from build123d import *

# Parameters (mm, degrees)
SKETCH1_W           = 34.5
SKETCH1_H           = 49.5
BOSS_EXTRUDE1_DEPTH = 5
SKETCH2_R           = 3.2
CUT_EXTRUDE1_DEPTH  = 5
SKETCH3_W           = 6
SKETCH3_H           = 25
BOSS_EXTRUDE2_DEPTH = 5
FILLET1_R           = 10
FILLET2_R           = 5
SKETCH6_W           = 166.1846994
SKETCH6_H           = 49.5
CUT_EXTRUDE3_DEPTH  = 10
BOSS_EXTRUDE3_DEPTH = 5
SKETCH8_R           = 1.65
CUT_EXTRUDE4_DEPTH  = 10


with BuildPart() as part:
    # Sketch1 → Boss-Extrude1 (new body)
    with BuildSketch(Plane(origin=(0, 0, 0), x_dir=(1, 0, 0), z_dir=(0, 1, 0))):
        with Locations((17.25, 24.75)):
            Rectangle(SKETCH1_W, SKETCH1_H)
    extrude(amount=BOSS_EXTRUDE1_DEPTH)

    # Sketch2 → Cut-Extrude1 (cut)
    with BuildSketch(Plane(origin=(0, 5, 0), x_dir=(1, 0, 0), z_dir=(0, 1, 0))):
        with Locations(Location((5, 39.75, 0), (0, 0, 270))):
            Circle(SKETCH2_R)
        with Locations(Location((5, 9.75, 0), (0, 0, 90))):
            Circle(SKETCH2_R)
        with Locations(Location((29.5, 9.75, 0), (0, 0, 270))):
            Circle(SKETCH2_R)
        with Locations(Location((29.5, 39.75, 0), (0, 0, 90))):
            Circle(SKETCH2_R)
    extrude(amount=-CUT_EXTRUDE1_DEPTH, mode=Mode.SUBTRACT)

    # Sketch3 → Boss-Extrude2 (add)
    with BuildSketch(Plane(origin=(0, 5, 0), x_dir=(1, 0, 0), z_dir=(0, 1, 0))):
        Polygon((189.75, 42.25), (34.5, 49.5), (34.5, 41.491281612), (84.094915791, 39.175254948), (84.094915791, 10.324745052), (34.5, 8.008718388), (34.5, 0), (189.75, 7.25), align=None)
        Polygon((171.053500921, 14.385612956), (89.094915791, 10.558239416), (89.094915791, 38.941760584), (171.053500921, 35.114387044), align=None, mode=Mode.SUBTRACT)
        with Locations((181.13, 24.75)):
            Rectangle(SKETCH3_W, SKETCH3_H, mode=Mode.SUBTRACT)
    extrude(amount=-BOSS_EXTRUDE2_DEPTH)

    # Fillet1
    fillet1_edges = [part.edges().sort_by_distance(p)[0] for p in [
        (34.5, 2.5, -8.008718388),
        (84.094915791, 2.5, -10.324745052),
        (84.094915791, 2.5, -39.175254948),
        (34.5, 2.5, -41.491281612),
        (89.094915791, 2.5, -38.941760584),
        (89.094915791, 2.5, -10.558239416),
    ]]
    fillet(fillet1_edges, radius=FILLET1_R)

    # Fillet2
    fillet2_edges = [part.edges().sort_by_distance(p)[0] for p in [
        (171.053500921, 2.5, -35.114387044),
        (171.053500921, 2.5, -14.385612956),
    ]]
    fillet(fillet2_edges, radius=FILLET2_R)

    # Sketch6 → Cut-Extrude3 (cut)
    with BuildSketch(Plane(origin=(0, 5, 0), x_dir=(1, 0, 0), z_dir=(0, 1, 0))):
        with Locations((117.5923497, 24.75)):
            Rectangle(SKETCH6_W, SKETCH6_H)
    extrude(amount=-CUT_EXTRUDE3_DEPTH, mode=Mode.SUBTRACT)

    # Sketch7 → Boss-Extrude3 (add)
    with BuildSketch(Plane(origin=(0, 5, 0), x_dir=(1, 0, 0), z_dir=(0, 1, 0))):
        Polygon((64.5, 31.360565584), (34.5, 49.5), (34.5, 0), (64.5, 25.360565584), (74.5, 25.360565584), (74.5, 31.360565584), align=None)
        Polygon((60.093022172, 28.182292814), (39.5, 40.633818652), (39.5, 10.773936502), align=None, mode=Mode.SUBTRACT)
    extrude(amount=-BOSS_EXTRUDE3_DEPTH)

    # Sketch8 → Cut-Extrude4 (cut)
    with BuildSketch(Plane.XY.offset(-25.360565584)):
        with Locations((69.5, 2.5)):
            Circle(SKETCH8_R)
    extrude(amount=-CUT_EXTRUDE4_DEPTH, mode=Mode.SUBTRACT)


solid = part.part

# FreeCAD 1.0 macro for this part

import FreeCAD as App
import Part
import Sketcher
Q = App.Units.Quantity


def edges_at(feature, points):
    """Names of the edges that pass closest to the given points."""
    edges = feature.Shape.Edges
    near = lambda p: min(range(len(edges)), key=lambda i: edges[i].distToShape(Part.Vertex(*p))[0])
    return sorted({f"Edge{near(p) + 1}" for p in points})

doc = App.newDocument("Part")
body = doc.addObject("PartDesign::Body", "Body")

sketch1 = body.newObject("Sketcher::SketchObject", "Sketch")
sketch1.AttachmentSupport = (doc.getObject("XZ_Plane"), [""])
sketch1.MapMode = "FlatFace"
sketch1.addGeometry([
    Part.LineSegment(App.Vector(0, -49.5, 0), App.Vector(0, 0, 0)),
    Part.LineSegment(App.Vector(0, 0, 0), App.Vector(34.5, 0, 0)),
    Part.LineSegment(App.Vector(34.5, 0, 0), App.Vector(34.5, -49.5, 0)),
    Part.LineSegment(App.Vector(34.5, -49.5, 0), App.Vector(0, -49.5, 0)),
], False)
sketch1.addConstraint([
    Sketcher.Constraint("Coincident", 0, 2, 1, 1),
    Sketcher.Constraint("Coincident", 1, 2, 2, 1),
    Sketcher.Constraint("Coincident", 2, 2, 3, 1),
    Sketcher.Constraint("Coincident", 3, 2, 0, 1),
    Sketcher.Constraint("Vertical", 0),
    Sketcher.Constraint("Horizontal", 1),
    Sketcher.Constraint("Vertical", 2),
    Sketcher.Constraint("Horizontal", 3),
    Sketcher.Constraint("Coincident", 0, 2, -1, 1),
    Sketcher.Constraint("DistanceX", 1, 1, 1, 2, Q("34.5 mm")),
    Sketcher.Constraint("DistanceY", 0, 1, 0, 2, Q("49.5 mm")),
])
pad1 = body.newObject("PartDesign::Pad", "Pad")
pad1.Profile = sketch1
pad1.Length = 5
pad1.Reversed = True

sketch2 = body.newObject("Sketcher::SketchObject", "Sketch001")
sketch2.AttachmentSupport = (doc.getObject("XZ_Plane"), [""])
sketch2.MapMode = "FlatFace"
sketch2.AttachmentOffset = App.Placement(App.Vector(0, 0, -5), App.Rotation())
sketch2.addGeometry([
    Part.Circle(App.Vector(5, -39.75, 0), App.Vector(0, 0, 1), 3.2),
    Part.Circle(App.Vector(5, -9.75, 0), App.Vector(0, 0, 1), 3.2),
    Part.Circle(App.Vector(29.5, -9.75, 0), App.Vector(0, 0, 1), 3.2),
    Part.Circle(App.Vector(29.5, -39.75, 0), App.Vector(0, 0, 1), 3.2),
], False)
sketch2.addConstraint([
    Sketcher.Constraint("Equal", 0, 1),
    Sketcher.Constraint("Equal", 1, 2),
    Sketcher.Constraint("Equal", 2, 3),
    Sketcher.Constraint("Horizontal", 1, 3, 2, 3),
    Sketcher.Constraint("Horizontal", 0, 3, 3, 3),
    Sketcher.Constraint("Vertical", 0, 3, 1, 3),
    Sketcher.Constraint("Vertical", 2, 3, 3, 3),
    Sketcher.Constraint("Diameter", 0, Q("6.4 mm")),
    Sketcher.Constraint("DistanceX", -1, 1, 0, 3, Q("5 mm")),
    Sketcher.Constraint("DistanceY", 0, 3, 1, 3, Q("30 mm")),
    Sketcher.Constraint("DistanceX", -1, 1, 2, 3, Q("29.5 mm")),
    Sketcher.Constraint("DistanceY", 0, 3, -1, 1, Q("39.75 mm")),
])
pocket1 = body.newObject("PartDesign::Pocket", "Pocket")
pocket1.Profile = sketch2
pocket1.Length = 5
pocket1.Reversed = True

sketch3 = body.newObject("Sketcher::SketchObject", "Sketch002")
sketch3.AttachmentSupport = (doc.getObject("XZ_Plane"), [""])
sketch3.MapMode = "FlatFace"
sketch3.AttachmentOffset = App.Placement(App.Vector(0, 0, -5), App.Rotation())
sketch3.addGeometry([
    Part.LineSegment(App.Vector(189.75, -42.25, 0), App.Vector(34.5, -49.5, 0)),
    Part.LineSegment(App.Vector(34.5, -49.5, 0), App.Vector(34.5, -41.491282, 0)),
    Part.LineSegment(App.Vector(34.5, -41.491282, 0), App.Vector(84.094916, -39.175255, 0)),
    Part.LineSegment(App.Vector(84.094916, -39.175255, 0), App.Vector(84.094916, -10.324745, 0)),
    Part.LineSegment(App.Vector(84.094916, -10.324745, 0), App.Vector(34.5, -8.008718, 0)),
    Part.LineSegment(App.Vector(34.5, -8.008718, 0), App.Vector(34.5, 0, 0)),
    Part.LineSegment(App.Vector(34.5, 0, 0), App.Vector(189.75, -7.25, 0)),
    Part.LineSegment(App.Vector(189.75, -7.25, 0), App.Vector(189.75, -42.25, 0)),
    Part.LineSegment(App.Vector(171.053501, -35.114387, 0), App.Vector(171.053501, -14.385613, 0)),
    Part.LineSegment(App.Vector(171.053501, -14.385613, 0), App.Vector(89.094916, -10.558239, 0)),
    Part.LineSegment(App.Vector(89.094916, -10.558239, 0), App.Vector(89.094916, -38.941761, 0)),
    Part.LineSegment(App.Vector(89.094916, -38.941761, 0), App.Vector(171.053501, -35.114387, 0)),
    Part.LineSegment(App.Vector(184.13, -12.25, 0), App.Vector(178.13, -12.25, 0)),
    Part.LineSegment(App.Vector(178.13, -12.25, 0), App.Vector(178.13, -37.25, 0)),
    Part.LineSegment(App.Vector(178.13, -37.25, 0), App.Vector(184.13, -37.25, 0)),
    Part.LineSegment(App.Vector(184.13, -37.25, 0), App.Vector(184.13, -12.25, 0)),
], False)
sketch3.addConstraint([
    Sketcher.Constraint("Coincident", 0, 2, 1, 1),
    Sketcher.Constraint("Coincident", 1, 2, 2, 1),
    Sketcher.Constraint("Coincident", 2, 2, 3, 1),
    Sketcher.Constraint("Coincident", 3, 2, 4, 1),
    Sketcher.Constraint("Coincident", 4, 2, 5, 1),
    Sketcher.Constraint("Coincident", 5, 2, 6, 1),
    Sketcher.Constraint("Coincident", 6, 2, 7, 1),
    Sketcher.Constraint("Coincident", 7, 2, 0, 1),
    Sketcher.Constraint("Coincident", 8, 2, 9, 1),
    Sketcher.Constraint("Coincident", 9, 2, 10, 1),
    Sketcher.Constraint("Coincident", 10, 2, 11, 1),
    Sketcher.Constraint("Coincident", 11, 2, 8, 1),
    Sketcher.Constraint("Coincident", 12, 2, 13, 1),
    Sketcher.Constraint("Coincident", 13, 2, 14, 1),
    Sketcher.Constraint("Coincident", 14, 2, 15, 1),
    Sketcher.Constraint("Coincident", 15, 2, 12, 1),
    Sketcher.Constraint("Vertical", 1),
    Sketcher.Constraint("Vertical", 3),
    Sketcher.Constraint("Vertical", 5),
    Sketcher.Constraint("Vertical", 7),
    Sketcher.Constraint("Vertical", 8),
    Sketcher.Constraint("Vertical", 10),
    Sketcher.Constraint("Horizontal", 12),
    Sketcher.Constraint("Vertical", 13),
    Sketcher.Constraint("Horizontal", 14),
    Sketcher.Constraint("Vertical", 15),
    Sketcher.Constraint("PointOnObject", 5, 2, -1),
    Sketcher.Constraint("Parallel", 0, 2),
    Sketcher.Constraint("Parallel", 4, 6),
    Sketcher.Constraint("Parallel", 6, 9),
    Sketcher.Constraint("Parallel", 2, 11),
    Sketcher.Constraint("Vertical", 1, 2, 4, 2),
    Sketcher.Constraint("Equal", 1, 5),
    Sketcher.Constraint("Equal", 2, 4),
    Sketcher.Constraint("DistanceX", 12, 2, 12, 1, Q("6 mm")),
    Sketcher.Constraint("DistanceY", 7, 2, 7, 1, Q("35 mm")),
    Sketcher.Constraint("DistanceY", 13, 2, 13, 1, Q("25 mm")),
    Sketcher.Constraint("DistanceX", 3, 2, 9, 2, Q("5 mm")),
    Sketcher.Constraint("DistanceY", 12, 2, 6, 2, Q("5 mm")),
    Sketcher.Constraint("DistanceX", -1, 1, 0, 2, Q("34.5 mm")),
    Sketcher.Constraint("DistanceY", 0, 2, -1, 1, Q("49.5 mm")),
    Sketcher.Constraint("DistanceX", -1, 1, 6, 2, Q("189.75 mm")),
    Sketcher.Constraint("DistanceX", -1, 1, 12, 2, Q("178.13 mm")),
    Sketcher.Constraint("DistanceY", 1, 1, 1, 2, Q("8.008718 mm")),
    Sketcher.Constraint("DistanceY", 3, 1, 3, 2, Q("28.85051 mm")),
    Sketcher.Constraint("DistanceY", 10, 2, 10, 1, Q("28.383521 mm")),
    Sketcher.Constraint("DistanceX", -1, 1, 8, 2, Q("171.053501 mm")),
    Sketcher.Constraint("DistanceY", 9, 2, -1, 1, Q("10.558239 mm")),
])
pad2 = body.newObject("PartDesign::Pad", "Pad001")
pad2.Profile = sketch3
pad2.Length = 5
doc.recompute()

fillet = body.newObject("PartDesign::Fillet", "Fillet")
fillet.Base = (pad2, edges_at(pad2, [
    (34.5, 2.5, -8.009),
    (84.095, 2.5, -10.325),
    (84.095, 2.5, -39.175),
    (34.5, 2.5, -41.491),
    (89.095, 2.5, -38.942),
    (89.095, 2.5, -10.558),
]))
fillet.Radius = 10
doc.recompute()

fillet2 = body.newObject("PartDesign::Fillet", "Fillet001")
fillet2.Base = (fillet, edges_at(fillet, [(171.054, 2.5, -35.114), (171.054, 2.5, -14.386)]))
fillet2.Radius = 5

sketch4 = body.newObject("Sketcher::SketchObject", "Sketch003")
sketch4.AttachmentSupport = (doc.getObject("XZ_Plane"), [""])
sketch4.MapMode = "FlatFace"
sketch4.AttachmentOffset = App.Placement(App.Vector(0, 0, -5), App.Rotation())
sketch4.addGeometry([
    Part.LineSegment(App.Vector(34.5, -49.5, 0), App.Vector(34.5, 0, 0)),
    Part.LineSegment(App.Vector(34.5, 0, 0), App.Vector(200.684699, 0, 0)),
    Part.LineSegment(App.Vector(200.684699, 0, 0), App.Vector(200.684699, -49.5, 0)),
    Part.LineSegment(App.Vector(200.684699, -49.5, 0), App.Vector(34.5, -49.5, 0)),
], False)
sketch4.addConstraint([
    Sketcher.Constraint("Coincident", 0, 2, 1, 1),
    Sketcher.Constraint("Coincident", 1, 2, 2, 1),
    Sketcher.Constraint("Coincident", 2, 2, 3, 1),
    Sketcher.Constraint("Coincident", 3, 2, 0, 1),
    Sketcher.Constraint("Vertical", 0),
    Sketcher.Constraint("Horizontal", 1),
    Sketcher.Constraint("Vertical", 2),
    Sketcher.Constraint("Horizontal", 3),
    Sketcher.Constraint("PointOnObject", 0, 2, -1),
    Sketcher.Constraint("DistanceY", 0, 1, 0, 2, Q("49.5 mm")),
    Sketcher.Constraint("DistanceX", -1, 1, 0, 2, Q("34.5 mm")),
    Sketcher.Constraint("DistanceX", 1, 1, 1, 2, Q("166.184699 mm")),
])
pocket2 = body.newObject("PartDesign::Pocket", "Pocket001")
pocket2.Profile = sketch4
pocket2.Length = 10
pocket2.Reversed = True

sketch5 = body.newObject("Sketcher::SketchObject", "Sketch004")
sketch5.AttachmentSupport = (doc.getObject("XZ_Plane"), [""])
sketch5.MapMode = "FlatFace"
sketch5.AttachmentOffset = App.Placement(App.Vector(0, 0, -5), App.Rotation())
sketch5.addGeometry([
    Part.LineSegment(App.Vector(64.5, -31.360566, 0), App.Vector(34.5, -49.5, 0)),
    Part.LineSegment(App.Vector(34.5, -49.5, 0), App.Vector(34.5, 0, 0)),
    Part.LineSegment(App.Vector(34.5, 0, 0), App.Vector(64.5, -25.360566, 0)),
    Part.LineSegment(App.Vector(64.5, -25.360566, 0), App.Vector(74.5, -25.360566, 0)),
    Part.LineSegment(App.Vector(74.5, -25.360566, 0), App.Vector(74.5, -31.360566, 0)),
    Part.LineSegment(App.Vector(74.5, -31.360566, 0), App.Vector(64.5, -31.360566, 0)),
    Part.LineSegment(App.Vector(39.5, -40.633819, 0), App.Vector(60.093022, -28.182293, 0)),
    Part.LineSegment(App.Vector(60.093022, -28.182293, 0), App.Vector(39.5, -10.773937, 0)),
    Part.LineSegment(App.Vector(39.5, -10.773937, 0), App.Vector(39.5, -40.633819, 0)),
], False)
sketch5.addConstraint([
    Sketcher.Constraint("Coincident", 0, 2, 1, 1),
    Sketcher.Constraint("Coincident", 1, 2, 2, 1),
    Sketcher.Constraint("Coincident", 2, 2, 3, 1),
    Sketcher.Constraint("Coincident", 3, 2, 4, 1),
    Sketcher.Constraint("Coincident", 4, 2, 5, 1),
    Sketcher.Constraint("Coincident", 5, 2, 0, 1),
    Sketcher.Constraint("Coincident", 6, 2, 7, 1),
    Sketcher.Constraint("Coincident", 7, 2, 8, 1),
    Sketcher.Constraint("Coincident", 8, 2, 6, 1),
    Sketcher.Constraint("Vertical", 1),
    Sketcher.Constraint("Horizontal", 3),
    Sketcher.Constraint("Vertical", 4),
    Sketcher.Constraint("Horizontal", 5),
    Sketcher.Constraint("Vertical", 8),
    Sketcher.Constraint("PointOnObject", 1, 2, -1),
    Sketcher.Constraint("Parallel", 0, 6),
    Sketcher.Constraint("Parallel", 2, 7),
    Sketcher.Constraint("Vertical", 2, 2, 5, 2),
    Sketcher.Constraint("DistanceX", 3, 1, 3, 2, Q("10 mm")),
    Sketcher.Constraint("DistanceY", 4, 2, 4, 1, Q("6 mm")),
    Sketcher.Constraint("DistanceY", 1, 1, 1, 2, Q("49.5 mm")),
    Sketcher.Constraint("DistanceX", 0, 2, 2, 2, Q("30 mm")),
    Sketcher.Constraint("DistanceX", 1, 2, 7, 2, Q("5 mm")),
    Sketcher.Constraint("DistanceX", -1, 1, 0, 2, Q("34.5 mm")),
    Sketcher.Constraint("DistanceY", 8, 2, 8, 1, Q("29.859882 mm")),
    Sketcher.Constraint("DistanceY", 8, 2, -1, 1, Q("40.633819 mm")),
    Sketcher.Constraint("DistanceY", 2, 2, 7, 2, Q("14.586629 mm")),
])
pad3 = body.newObject("PartDesign::Pad", "Pad002")
pad3.Profile = sketch5
pad3.Length = 5

sketch6 = body.newObject("Sketcher::SketchObject", "Sketch005")
sketch6.AttachmentSupport = (doc.getObject("XY_Plane"), [""])
sketch6.MapMode = "FlatFace"
sketch6.AttachmentOffset = App.Placement(App.Vector(0, 0, -25.360566), App.Rotation())
sketch6.addGeometry(Part.Circle(App.Vector(69.5, 2.5, 0), App.Vector(0, 0, 1), 1.65), False)
sketch6.addConstraint([
    Sketcher.Constraint("Diameter", 0, Q("3.3 mm")),
    Sketcher.Constraint("DistanceX", -1, 1, 0, 3, Q("69.5 mm")),
    Sketcher.Constraint("DistanceY", -1, 1, 0, 3, Q("2.5 mm")),
])
pocket3 = body.newObject("PartDesign::Pocket", "Pocket002")
pocket3.Profile = sketch6
pocket3.Length = 10

doc.recompute()
